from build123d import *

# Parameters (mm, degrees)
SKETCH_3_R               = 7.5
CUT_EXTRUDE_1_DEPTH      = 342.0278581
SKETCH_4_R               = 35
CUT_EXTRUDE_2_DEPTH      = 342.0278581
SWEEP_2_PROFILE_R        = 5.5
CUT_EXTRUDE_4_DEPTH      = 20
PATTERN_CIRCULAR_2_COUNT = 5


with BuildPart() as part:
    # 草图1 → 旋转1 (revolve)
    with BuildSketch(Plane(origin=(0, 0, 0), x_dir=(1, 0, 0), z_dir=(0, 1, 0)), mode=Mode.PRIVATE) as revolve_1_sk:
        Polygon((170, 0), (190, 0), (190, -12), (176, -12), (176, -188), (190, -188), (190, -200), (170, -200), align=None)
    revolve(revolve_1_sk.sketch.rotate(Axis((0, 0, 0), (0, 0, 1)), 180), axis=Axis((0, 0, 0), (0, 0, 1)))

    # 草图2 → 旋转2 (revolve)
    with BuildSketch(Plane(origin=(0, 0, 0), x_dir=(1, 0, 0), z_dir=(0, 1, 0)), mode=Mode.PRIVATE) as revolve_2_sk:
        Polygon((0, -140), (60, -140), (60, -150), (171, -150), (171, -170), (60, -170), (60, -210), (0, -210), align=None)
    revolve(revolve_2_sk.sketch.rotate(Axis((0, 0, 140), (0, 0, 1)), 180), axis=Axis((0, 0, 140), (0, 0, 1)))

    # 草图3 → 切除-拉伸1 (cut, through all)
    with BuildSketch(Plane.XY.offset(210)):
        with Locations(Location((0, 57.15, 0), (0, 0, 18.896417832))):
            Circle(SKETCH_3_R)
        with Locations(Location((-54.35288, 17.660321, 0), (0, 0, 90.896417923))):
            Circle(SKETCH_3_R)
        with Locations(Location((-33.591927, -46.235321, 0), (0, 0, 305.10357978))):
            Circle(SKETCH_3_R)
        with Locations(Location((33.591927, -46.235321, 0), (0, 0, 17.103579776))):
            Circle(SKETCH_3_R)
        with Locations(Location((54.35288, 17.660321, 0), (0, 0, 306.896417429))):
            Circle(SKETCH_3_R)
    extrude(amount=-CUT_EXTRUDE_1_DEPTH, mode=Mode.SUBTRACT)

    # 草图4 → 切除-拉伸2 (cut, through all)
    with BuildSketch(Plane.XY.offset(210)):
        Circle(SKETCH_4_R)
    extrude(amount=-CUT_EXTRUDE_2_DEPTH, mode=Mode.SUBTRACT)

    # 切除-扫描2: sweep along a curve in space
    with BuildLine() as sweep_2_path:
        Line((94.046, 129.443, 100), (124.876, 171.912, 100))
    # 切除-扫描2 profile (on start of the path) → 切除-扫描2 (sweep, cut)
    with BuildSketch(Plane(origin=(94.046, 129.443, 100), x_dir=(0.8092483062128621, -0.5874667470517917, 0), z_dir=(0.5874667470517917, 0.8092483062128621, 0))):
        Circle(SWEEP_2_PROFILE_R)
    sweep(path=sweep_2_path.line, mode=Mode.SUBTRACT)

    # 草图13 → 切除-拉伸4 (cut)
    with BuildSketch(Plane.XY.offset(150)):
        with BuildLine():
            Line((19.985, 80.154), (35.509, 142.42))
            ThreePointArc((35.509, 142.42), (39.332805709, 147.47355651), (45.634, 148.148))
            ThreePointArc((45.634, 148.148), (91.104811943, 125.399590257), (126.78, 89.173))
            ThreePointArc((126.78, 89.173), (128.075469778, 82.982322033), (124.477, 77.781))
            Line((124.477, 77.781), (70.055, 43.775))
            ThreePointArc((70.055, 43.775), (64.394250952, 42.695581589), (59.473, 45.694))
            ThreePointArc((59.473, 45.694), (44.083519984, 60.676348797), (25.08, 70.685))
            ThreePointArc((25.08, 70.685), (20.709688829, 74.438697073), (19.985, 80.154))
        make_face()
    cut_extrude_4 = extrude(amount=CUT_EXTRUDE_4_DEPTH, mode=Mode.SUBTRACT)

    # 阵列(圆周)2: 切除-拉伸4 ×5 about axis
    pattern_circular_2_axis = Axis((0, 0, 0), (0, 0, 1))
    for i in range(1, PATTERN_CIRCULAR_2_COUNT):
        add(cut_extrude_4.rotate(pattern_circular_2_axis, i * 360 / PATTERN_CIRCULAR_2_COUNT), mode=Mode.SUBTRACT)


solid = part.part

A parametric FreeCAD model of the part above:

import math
import FreeCAD as App
import Part
import Sketcher


def add_polygon(sketch, points):
    """Adds a closed chain of lines whose ends are joined by coincident constraints."""
    first, n = sketch.GeometryCount, len(points)
    for a, b in zip(points, points[1:] + points[:1]):
        sketch.addGeometry(Part.LineSegment(App.Vector(*a, 0), App.Vector(*b, 0)), False)
    for i in range(n):
        sketch.addConstraint(Sketcher.Constraint("Coincident", first + i, 2, first + (i + 1) % n, 1))

doc = App.newDocument("Part")
body = doc.addObject("PartDesign::Body", "Body")

# Sketch on XZ plane
sketch1 = body.newObject("Sketcher::SketchObject", "Sketch")
sketch1.AttachmentSupport = (doc.getObject("XZ_Plane"), [""])
sketch1.MapMode = "FlatFace"
add_polygon(sketch1, [(190, 0), (170, 0), (170, 200), (190, 200), (190, 188), (176, 188), (176, 12), (190, 12)])  # lines 0-7
sketch1.addConstraint(Sketcher.Constraint("Horizontal", 0))
sketch1.addConstraint(Sketcher.Constraint("Vertical", 1))
sketch1.addConstraint(Sketcher.Constraint("Horizontal", 2))
sketch1.addConstraint(Sketcher.Constraint("Vertical", 3))
sketch1.addConstraint(Sketcher.Constraint("Horizontal", 4))
sketch1.addConstraint(Sketcher.Constraint("Vertical", 5))
sketch1.addConstraint(Sketcher.Constraint("Horizontal", 6))
sketch1.addConstraint(Sketcher.Constraint("Vertical", 7))
sketch1.addConstraint(Sketcher.Constraint("PointOnObject", 0, 2, -1))
sketch1.addConstraint(Sketcher.Constraint("Vertical", 3, 2, 6, 2))
sketch1.addConstraint(Sketcher.Constraint("Equal", 3, 7))
sketch1.addConstraint(Sketcher.Constraint("DistanceX", 0, 2, 0, 1, 20.0))
sketch1.addConstraint(Sketcher.Constraint("DistanceX", 4, 2, 4, 1, 14.0))
sketch1.addConstraint(Sketcher.Constraint("DistanceY", 1, 1, 1, 2, 200.0))
sketch1.addConstraint(Sketcher.Constraint("DistanceY", 3, 2, 3, 1, 12.0))
sketch1.addConstraint(Sketcher.Constraint("DistanceX", -1, 1, 0, 2, 170.0))
revolution = body.newObject("PartDesign::Revolution", "Revolution")
revolution.Profile = sketch1
revolution.ReferenceAxis = (sketch1, ["V_Axis"])
revolution.Angle = 360

# Sketch on XZ plane
sketch2 = body.newObject("Sketcher::SketchObject", "Sketch001")
sketch2.AttachmentSupport = (doc.getObject("XZ_Plane"), [""])
sketch2.MapMode = "FlatFace"
add_polygon(sketch2, [(60, 140), (0, 140), (0, 210), (60, 210), (60, 170), (171, 170), (171, 150), (60, 150)])  # lines 0-7
sketch2.addConstraint(Sketcher.Constraint("Horizontal", 0))
sketch2.addConstraint(Sketcher.Constraint("Vertical", 1))
sketch2.addConstraint(Sketcher.Constraint("Horizontal", 2))
sketch2.addConstraint(Sketcher.Constraint("Vertical", 3))
sketch2.addConstraint(Sketcher.Constraint("Horizontal", 4))
sketch2.addConstraint(Sketcher.Constraint("Vertical", 5))
sketch2.addConstraint(Sketcher.Constraint("Horizontal", 6))
sketch2.addConstraint(Sketcher.Constraint("Vertical", 7))
sketch2.addConstraint(Sketcher.Constraint("PointOnObject", 0, 2, -2))
sketch2.addConstraint(Sketcher.Constraint("Vertical", 3, 2, 6, 2))
sketch2.addConstraint(Sketcher.Constraint("DistanceX", 0, 2, 0, 1, 60.0))
sketch2.addConstraint(Sketcher.Constraint("DistanceX", 4, 1, 4, 2, 111.0))
sketch2.addConstraint(Sketcher.Constraint("DistanceY", 1, 1, 1, 2, 70.0))
sketch2.addConstraint(Sketcher.Constraint("DistanceY", 3, 2, 3, 1, 40.0))
sketch2.addConstraint(Sketcher.Constraint("DistanceY", 5, 2, 5, 1, 20.0))
sketch2.addConstraint(Sketcher.Constraint("DistanceY", -1, 1, 0, 2, 140.0))
revolution2 = body.newObject("PartDesign::Revolution", "Revolution001")
revolution2.Profile = sketch2
revolution2.ReferenceAxis = (sketch2, ["V_Axis"])
revolution2.Angle = 360

# Sketch on XY plane
sketch3 = body.newObject("Sketcher::SketchObject", "Sketch002")
sketch3.AttachmentSupport = (doc.getObject("XY_Plane"), [""])
sketch3.MapMode = "FlatFace"
sketch3.AttachmentOffset = App.Placement(App.Vector(0, 0, 210), App.Rotation())
sketch3.addGeometry(Part.Circle(App.Vector(0, 57, 0), App.Vector(0, 0, 1), 8), False)
sketch3.addGeometry(Part.Circle(App.Vector(-54, 18, 0), App.Vector(0, 0, 1), 8), False)
sketch3.addGeometry(Part.Circle(App.Vector(-34, -46, 0), App.Vector(0, 0, 1), 8), False)
sketch3.addGeometry(Part.Circle(App.Vector(34, -46, 0), App.Vector(0, 0, 1), 8), False)
sketch3.addGeometry(Part.Circle(App.Vector(54, 18, 0), App.Vector(0, 0, 1), 8), False)
sketch3.addConstraint(Sketcher.Constraint("Equal", 0, 1))
sketch3.addConstraint(Sketcher.Constraint("Equal", 1, 2))
sketch3.addConstraint(Sketcher.Constraint("Equal", 2, 3))
sketch3.addConstraint(Sketcher.Constraint("Equal", 3, 4))
sketch3.addConstraint(Sketcher.Constraint("Symmetric", 2, 3, 3, 3, -2))
sketch3.addConstraint(Sketcher.Constraint("Symmetric", 1, 3, 4, 3, -2))
sketch3.addConstraint(Sketcher.Constraint("PointOnObject", 0, 3, -2))
sketch3.addConstraint(Sketcher.Constraint("Diameter", 0, 15.0))
sketch3.addConstraint(Sketcher.Constraint("DistanceY", -1, 1, 0, 3, 57.15))
sketch3.addConstraint(Sketcher.Constraint("DistanceX", 1, 3, -1, 1, 54.35288))
sketch3.addConstraint(Sketcher.Constraint("DistanceY", -1, 1, 1, 3, 17.660321))
sketch3.addConstraint(Sketcher.Constraint("DistanceY", 2, 3, -1, 1, 46.235321))
sketch3.addConstraint(Sketcher.Constraint("DistanceX", 2, 3, -1, 1, 33.591927))
pocket1 = body.newObject("PartDesign::Pocket", "Pocket")
pocket1.Profile = sketch3
pocket1.Type = "ThroughAll"

# Sketch on XY plane
sketch4 = body.newObject("Sketcher::SketchObject", "Sketch003")
sketch4.AttachmentSupport = (doc.getObject("XY_Plane"), [""])
sketch4.MapMode = "FlatFace"
sketch4.AttachmentOffset = App.Placement(App.Vector(0, 0, 210), App.Rotation())
sketch4.addGeometry(Part.Circle(App.Vector(0, 0, 0), App.Vector(0, 0, 1), 35), False)
sketch4.addConstraint(Sketcher.Constraint("Coincident", 0, 3, -1, 1))
sketch4.addConstraint(Sketcher.Constraint("Diameter", 0, 70.0))
pocket2 = body.newObject("PartDesign::Pocket", "Pocket001")
pocket2.Profile = sketch4
pocket2.Type = "ThroughAll"

# Sketch on an angled plane
sketch5 = body.newObject("Sketcher::SketchObject", "Sketch004")
sketch5.Placement = App.Placement(App.Vector(94.046, 129.443, 100), App.Rotation(App.Vector(0.809248306, -0.587466747, 0), App.Vector(0, 0, -1), App.Vector(0.587466747, 0.809248306, 0), "ZXY"))
sketch5.addGeometry(Part.Circle(App.Vector(0, 0, 0), App.Vector(0, 0, 1), 6), False)
sketch5.addConstraint(Sketcher.Constraint("Coincident", 0, 3, -1, 1))
sketch5.addConstraint(Sketcher.Constraint("Diameter", 0, 11.0))

# Sketch on an angled plane
sketch6 = body.newObject("Sketcher::SketchObject", "Sketch005")
sketch6.Placement = App.Placement(App.Vector(0.05107, -0.037074, 0), App.Rotation(App.Vector(0.587466747, 0.809248306, 0), App.Vector(0, 0, 1), App.Vector(0.809248306, -0.587466747, 0), "ZXY"))
sketch6.addGeometry(Part.LineSegment(App.Vector(160, 100, 0), App.Vector(212, 100, 0)), False)
sketch6.addConstraint(Sketcher.Constraint("Horizontal", 0))
sketch6.addConstraint(Sketcher.Constraint("DistanceY", -1, 1, 0, 1, 100.0))
sketch6.addConstraint(Sketcher.Constraint("DistanceX", 0, 1, 0, 2, 52.479566))
sketch6.addConstraint(Sketcher.Constraint("DistanceX", -1, 1, 0, 1, 160.000426))
doc.recompute()

subtractivepipe = body.newObject("PartDesign::SubtractivePipe", "SubtractivePipe")
subtractivepipe.Profile = sketch5
subtractivepipe.Spine = (sketch6, ["Edge1"])

# Sketch on XY plane
sketch7 = body.newObject("Sketcher::SketchObject", "Sketch006")
sketch7.AttachmentSupport = (doc.getObject("XY_Plane"), [""])
sketch7.MapMode = "FlatFace"
sketch7.AttachmentOffset = App.Placement(App.Vector(0, 0, 150), App.Rotation())
sketch7.addGeometry(Part.LineSegment(App.Vector(36, 142, 0), App.Vector(20, 80, 0)), False)
sketch7.addGeometry(Part.ArcOfCircle(Part.Circle(App.Vector(28, 78, 0), App.Vector(0, 0, 1), 8), math.radians(166), math.radians(250)), False)
sketch7.addGeometry(Part.ArcOfCircle(Part.Circle(App.Vector(0, 0, 0), App.Vector(0, 0, 1), 75), math.radians(38), math.radians(70)), False)
sketch7.addGeometry(Part.ArcOfCircle(Part.Circle(App.Vector(66, 51, 0), App.Vector(0, 0, 1), 8), math.radians(-142), math.radians(-58)), False)
sketch7.addGeometry(Part.LineSegment(App.Vector(70, 44, 0), App.Vector(124, 78, 0)), False)
sketch7.addGeometry(Part.ArcOfCircle(Part.Circle(App.Vector(120, 85, 0), App.Vector(0, 0, 1), 8), math.radians(-58), math.radians(35)), False)
sketch7.addGeometry(Part.ArcOfCircle(Part.Circle(App.Vector(0, 0, 0), App.Vector(0, 0, 1), 155), math.radians(35), math.radians(73)), False)
sketch7.addGeometry(Part.ArcOfCircle(Part.Circle(App.Vector(43, 141, 0), App.Vector(0, 0, 1), 8), math.radians(73), math.radians(166)), False)
sketch7.addConstraint(Sketcher.Constraint("Coincident", 0, 2, 1, 1))
sketch7.addConstraint(Sketcher.Constraint("Coincident", 1, 2, 2, 2))
sketch7.addConstraint(Sketcher.Constraint("Coincident", 2, 1, 3, 1))
sketch7.addConstraint(Sketcher.Constraint("Coincident", 3, 2, 4, 1))
sketch7.addConstraint(Sketcher.Constraint("Coincident", 4, 2, 5, 1))
sketch7.addConstraint(Sketcher.Constraint("Coincident", 5, 2, 6, 1))
sketch7.addConstraint(Sketcher.Constraint("Coincident", 6, 2, 7, 1))
sketch7.addConstraint(Sketcher.Constraint("Coincident", 7, 2, 0, 1))
sketch7.addConstraint(Sketcher.Constraint("Radius", 7, 7.982001))
sketch7.addConstraint(Sketcher.Constraint("DistanceX", -1, 1, 1, 2, 25.08))
sketch7.addConstraint(Sketcher.Constraint("DistanceX", -1, 1, 5, 2, 126.78))
sketch7.addConstraint(Sketcher.Constraint("DistanceY", -1, 1, 7, 2, 142.42))
sketch7.addConstraint(Sketcher.Constraint("Radius", 1, 8.017141))
sketch7.addConstraint(Sketcher.Constraint("Radius", 3, 8.013138))
sketch7.addConstraint(Sketcher.Constraint("Radius", 6, 155.150392))
sketch7.addConstraint(Sketcher.Constraint("DistanceY", 2, 1, 0, 2, 34.46))
sketch7.addConstraint(Sketcher.Constraint("DistanceY", 3, 2, 1, 2, 26.91))
sketch7.addConstraint(Sketcher.Constraint("DistanceX", 0, 2, 3, 2, 50.07))
sketch7.addConstraint(Sketcher.Constraint("DistanceX", -1, 1, 0, 2, 19.985))
sketch7.addConstraint(Sketcher.Constraint("DistanceY", -1, 1, 0, 2, 80.154))
sketch7.addConstraint(Sketcher.Constraint("DistanceY", -1, 1, 1, 2, 70.685))
sketch7.addConstraint(Sketcher.Constraint("DistanceX", -1, 1, 2, 1, 59.473))
sketch7.addConstraint(Sketcher.Constraint("DistanceX", -1, 1, 4, 2, 124.477))
sketch7.addConstraint(Sketcher.Constraint("DistanceY", -1, 1, 4, 2, 77.781))
sketch7.addConstraint(Sketcher.Constraint("DistanceY", -1, 1, 5, 2, 89.173))
sketch7.addConstraint(Sketcher.Constraint("DistanceX", -1, 1, 6, 2, 45.634))
sketch7.addConstraint(Sketcher.Constraint("DistanceY", -1, 1, 6, 2, 148.148))
sketch7.addConstraint(Sketcher.Constraint("DistanceX", -1, 1, 7, 2, 35.509))
sketch7.addConstraint(Sketcher.Constraint("Radius", 2, 75.032608))
sketch7.addConstraint(Sketcher.Constraint("Radius", 5, 8.011857))
pocket3 = body.newObject("PartDesign::Pocket", "Pocket002")
pocket3.Profile = sketch7
pocket3.Length = 20
pocket3.Reversed = True
doc.recompute()

polarpattern = body.newObject("PartDesign::PolarPattern", "PolarPattern")
polarpattern.Originals = [pocket3]
polarpattern.Axis = (doc.getObject("Z_Axis"), [""])
polarpattern.Angle = 360
polarpattern.Occurrences = 5
body.Tip = polarpattern

doc.recompute()
